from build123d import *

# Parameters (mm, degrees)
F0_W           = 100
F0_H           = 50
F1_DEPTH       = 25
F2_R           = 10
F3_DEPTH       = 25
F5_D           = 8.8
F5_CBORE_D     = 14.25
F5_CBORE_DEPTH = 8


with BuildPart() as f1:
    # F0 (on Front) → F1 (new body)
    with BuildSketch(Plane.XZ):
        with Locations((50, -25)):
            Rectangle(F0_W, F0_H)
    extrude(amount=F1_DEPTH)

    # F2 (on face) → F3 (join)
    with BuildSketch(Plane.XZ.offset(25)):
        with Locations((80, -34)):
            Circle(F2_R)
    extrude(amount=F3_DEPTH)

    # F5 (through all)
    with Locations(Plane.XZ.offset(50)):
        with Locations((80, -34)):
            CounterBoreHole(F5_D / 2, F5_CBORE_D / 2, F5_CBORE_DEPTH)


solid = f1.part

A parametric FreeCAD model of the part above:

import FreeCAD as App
import Part
import Sketcher

doc = App.newDocument("Part")
body = doc.addObject("PartDesign::Body", "Body")

# Sketch on XZ plane
sketch1 = doc.addObject("Sketcher::SketchObject", "Sketch")
body.addObject(sketch1)
sketch1.AttachmentSupport = (doc.XZ_Plane, [""])
sketch1.MapMode = "FlatFace"
sketch1.addGeometry(Part.LineSegment(App.Vector(0, 0, 0), App.Vector(0, -50, 0)), False)
sketch1.addGeometry(Part.LineSegment(App.Vector(0, -50, 0), App.Vector(100, -50, 0)), False)
sketch1.addGeometry(Part.LineSegment(App.Vector(100, -50, 0), App.Vector(100, 0, 0)), False)
sketch1.addGeometry(Part.LineSegment(App.Vector(100, 0, 0), App.Vector(0, 0, 0)), False)
sketch1.addConstraint(Sketcher.Constraint("Coincident", 0, 2, 1, 1))
sketch1.addConstraint(Sketcher.Constraint("Coincident", 1, 2, 2, 1))
sketch1.addConstraint(Sketcher.Constraint("Coincident", 2, 2, 3, 1))
sketch1.addConstraint(Sketcher.Constraint("Coincident", 3, 2, 0, 1))
sketch1.addConstraint(Sketcher.Constraint("Vertical", 0))
sketch1.addConstraint(Sketcher.Constraint("Horizontal", 1))
sketch1.addConstraint(Sketcher.Constraint("Vertical", 2))
sketch1.addConstraint(Sketcher.Constraint("Horizontal", 3))
sketch1.addConstraint(Sketcher.Constraint("Coincident", 3, 2, -1, 1))
sketch1.addConstraint(Sketcher.Constraint("DistanceX", 1, 1, 1, 2, 100.0))
sketch1.addConstraint(Sketcher.Constraint("DistanceY", 0, 2, 0, 1, 50.0))
pad1 = doc.addObject("PartDesign::Pad", "Pad")
body.addObject(pad1)
pad1.Profile = sketch1
pad1.Length = 25

# Sketch on XZ plane
sketch2 = doc.addObject("Sketcher::SketchObject", "Sketch001")
body.addObject(sketch2)
sketch2.AttachmentSupport = (doc.XZ_Plane, [""])
sketch2.MapMode = "FlatFace"
sketch2.AttachmentOffset = App.Placement(App.Vector(0, 0, 25), App.Rotation())
sketch2.addGeometry(Part.Circle(App.Vector(80, -34, 0), App.Vector(0, 0, 1), 10), False)
sketch2.addConstraint(Sketcher.Constraint("Diameter", 0, 20.0))
sketch2.addConstraint(Sketcher.Constraint("DistanceX", -1, 1, 0, 3, 80.0))
sketch2.addConstraint(Sketcher.Constraint("DistanceY", 0, 3, -1, 1, 34.0))
pad2 = doc.addObject("PartDesign::Pad", "Pad001")
body.addObject(pad2)
pad2.Profile = sketch2
pad2.Length = 25

# Sketch on XZ plane
sketch3 = doc.addObject("Sketcher::SketchObject", "Sketch002")
body.addObject(sketch3)
sketch3.AttachmentSupport = (doc.XZ_Plane, [""])
sketch3.MapMode = "FlatFace"
sketch3.AttachmentOffset = App.Placement(App.Vector(0, 0, 50), App.Rotation())
sketch3.addGeometry(Part.Circle(App.Vector(80, -34, 0), App.Vector(0, 0, 1), 4.4), False)
sketch3.addConstraint(Sketcher.Constraint("Diameter", 0, 8.8))
sketch3.addConstraint(Sketcher.Constraint("DistanceX", -1, 1, 0, 3, 80.0))
sketch3.addConstraint(Sketcher.Constraint("DistanceY", 0, 3, -1, 1, 34.0))
doc.recompute()
hole = doc.addObject("PartDesign::Hole", "Hole")
body.addObject(hole)
hole.Profile = sketch3
hole.ThreadType = "None"
hole.Diameter = 8.8
hole.DepthType = "ThroughAll"
hole.HoleCutType = "Counterbore"
hole.HoleCutDiameter = 14.25
hole.HoleCutDepth = 8

doc.recompute()
